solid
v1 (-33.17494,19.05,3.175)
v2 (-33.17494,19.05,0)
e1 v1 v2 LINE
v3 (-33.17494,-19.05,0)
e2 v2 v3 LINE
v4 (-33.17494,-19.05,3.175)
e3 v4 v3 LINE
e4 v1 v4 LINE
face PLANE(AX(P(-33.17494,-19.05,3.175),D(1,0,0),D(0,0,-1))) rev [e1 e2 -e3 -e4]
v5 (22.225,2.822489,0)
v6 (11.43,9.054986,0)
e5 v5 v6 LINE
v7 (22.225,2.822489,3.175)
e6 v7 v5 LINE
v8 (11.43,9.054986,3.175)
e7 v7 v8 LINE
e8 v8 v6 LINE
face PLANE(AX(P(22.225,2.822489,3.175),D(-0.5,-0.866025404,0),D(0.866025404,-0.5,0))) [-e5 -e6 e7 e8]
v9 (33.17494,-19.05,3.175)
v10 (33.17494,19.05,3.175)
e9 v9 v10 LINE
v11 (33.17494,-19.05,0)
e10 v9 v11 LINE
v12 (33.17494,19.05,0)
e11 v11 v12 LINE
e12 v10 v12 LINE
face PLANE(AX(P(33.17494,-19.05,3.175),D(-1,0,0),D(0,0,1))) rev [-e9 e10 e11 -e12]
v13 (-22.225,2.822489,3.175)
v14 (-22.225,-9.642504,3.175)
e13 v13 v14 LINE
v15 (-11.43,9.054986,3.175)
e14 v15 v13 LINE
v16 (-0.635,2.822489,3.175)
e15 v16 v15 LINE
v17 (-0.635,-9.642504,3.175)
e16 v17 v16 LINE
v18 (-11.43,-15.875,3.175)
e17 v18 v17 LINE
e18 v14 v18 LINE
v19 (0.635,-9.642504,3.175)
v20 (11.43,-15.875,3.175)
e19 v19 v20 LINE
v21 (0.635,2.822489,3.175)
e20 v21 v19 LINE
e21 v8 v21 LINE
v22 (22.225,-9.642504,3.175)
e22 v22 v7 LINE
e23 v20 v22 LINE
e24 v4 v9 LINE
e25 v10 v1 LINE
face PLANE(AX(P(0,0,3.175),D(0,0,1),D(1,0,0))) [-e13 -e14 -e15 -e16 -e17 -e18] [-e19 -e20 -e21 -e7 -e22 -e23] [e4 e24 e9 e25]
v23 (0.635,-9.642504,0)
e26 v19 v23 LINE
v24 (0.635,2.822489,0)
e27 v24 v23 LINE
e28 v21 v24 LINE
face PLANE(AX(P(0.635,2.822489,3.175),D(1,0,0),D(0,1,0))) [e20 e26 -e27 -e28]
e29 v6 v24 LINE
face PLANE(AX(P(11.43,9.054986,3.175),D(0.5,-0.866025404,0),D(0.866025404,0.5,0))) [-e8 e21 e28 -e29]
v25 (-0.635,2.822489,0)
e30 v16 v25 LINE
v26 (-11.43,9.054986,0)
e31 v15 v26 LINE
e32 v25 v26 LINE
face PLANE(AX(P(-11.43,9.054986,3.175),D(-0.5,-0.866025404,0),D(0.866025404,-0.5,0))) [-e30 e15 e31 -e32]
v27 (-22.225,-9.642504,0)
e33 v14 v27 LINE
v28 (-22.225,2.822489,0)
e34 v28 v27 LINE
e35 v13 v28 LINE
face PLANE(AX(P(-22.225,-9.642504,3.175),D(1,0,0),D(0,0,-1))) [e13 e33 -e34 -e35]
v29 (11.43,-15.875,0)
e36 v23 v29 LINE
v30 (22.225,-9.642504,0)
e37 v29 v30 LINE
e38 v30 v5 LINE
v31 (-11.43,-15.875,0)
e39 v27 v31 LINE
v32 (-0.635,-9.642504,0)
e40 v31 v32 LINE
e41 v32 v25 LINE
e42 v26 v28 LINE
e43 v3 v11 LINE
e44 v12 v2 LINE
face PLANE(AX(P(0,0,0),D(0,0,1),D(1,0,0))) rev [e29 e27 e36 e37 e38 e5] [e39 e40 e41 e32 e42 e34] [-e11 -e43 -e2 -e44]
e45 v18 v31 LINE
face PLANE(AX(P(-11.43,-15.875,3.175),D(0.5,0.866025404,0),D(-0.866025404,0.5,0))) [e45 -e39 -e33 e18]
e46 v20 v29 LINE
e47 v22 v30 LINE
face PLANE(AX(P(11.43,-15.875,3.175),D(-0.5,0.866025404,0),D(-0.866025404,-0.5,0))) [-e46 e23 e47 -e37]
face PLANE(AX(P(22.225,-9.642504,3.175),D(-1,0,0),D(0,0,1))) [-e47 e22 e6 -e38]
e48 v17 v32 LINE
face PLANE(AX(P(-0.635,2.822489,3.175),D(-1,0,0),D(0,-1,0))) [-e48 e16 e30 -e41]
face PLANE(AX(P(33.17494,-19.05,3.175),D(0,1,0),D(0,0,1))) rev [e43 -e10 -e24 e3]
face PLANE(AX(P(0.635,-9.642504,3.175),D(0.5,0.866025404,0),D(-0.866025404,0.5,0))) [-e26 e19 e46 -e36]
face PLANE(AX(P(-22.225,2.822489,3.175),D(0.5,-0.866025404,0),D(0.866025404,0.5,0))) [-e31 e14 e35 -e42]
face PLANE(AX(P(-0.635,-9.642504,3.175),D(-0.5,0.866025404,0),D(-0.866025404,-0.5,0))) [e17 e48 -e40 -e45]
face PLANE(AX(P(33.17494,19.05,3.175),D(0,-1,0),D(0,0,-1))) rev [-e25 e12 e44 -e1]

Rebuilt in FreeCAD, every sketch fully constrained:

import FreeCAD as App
import Part
import Sketcher

V = App.Vector
Q = App.Units.Quantity

doc = App.newDocument("Part")
body = doc.addObject("PartDesign::Body", "Body")

# Sketch on XY plane
sketch1 = body.newObject("Sketcher::SketchObject", "Sketch")
sketch1.AttachmentSupport = (doc.getObject("XY_Plane"), [""])
sketch1.MapMode = "FlatFace"
sketch1.addGeometry([
    Part.LineSegment(V(-33, 19, 0), V(-33, -19, 0)),  # 0
    Part.LineSegment(V(-33, -19, 0), V(33, -19, 0)),  # 1
    Part.LineSegment(V(33, -19, 0), V(33, 19, 0)),  # 2
    Part.LineSegment(V(33, 19, 0), V(-33, 19, 0)),  # 3
    Part.LineSegment(V(-1, 3, 0), V(-1, -10, 0)),  # 4
    Part.LineSegment(V(-1, -10, 0), V(-11, -16, 0)),  # 5
    Part.LineSegment(V(-11, -16, 0), V(-22, -10, 0)),  # 6
    Part.LineSegment(V(-22, -10, 0), V(-22, 3, 0)),  # 7
    Part.LineSegment(V(-22, 3, 0), V(-11, 9, 0)),  # 8
    Part.LineSegment(V(-11, 9, 0), V(-1, 3, 0)),  # 9
    Part.LineSegment(V(22, -10, 0), V(11, -16, 0)),  # 10
    Part.LineSegment(V(11, -16, 0), V(1, -10, 0)),  # 11
    Part.LineSegment(V(1, -10, 0), V(1, 3, 0)),  # 12
    Part.LineSegment(V(1, 3, 0), V(11, 9, 0)),  # 13
    Part.LineSegment(V(11, 9, 0), V(22, 3, 0)),  # 14
    Part.LineSegment(V(22, 3, 0), V(22, -10, 0)),  # 15
], False)
sketch1.addConstraint([
    Sketcher.Constraint("Coincident", 0, 2, 1, 1),
    Sketcher.Constraint("Coincident", 1, 2, 2, 1),
    Sketcher.Constraint("Coincident", 2, 2, 3, 1),
    Sketcher.Constraint("Coincident", 3, 2, 0, 1),
    Sketcher.Constraint("Coincident", 4, 2, 5, 1),
    Sketcher.Constraint("Coincident", 5, 2, 6, 1),
    Sketcher.Constraint("Coincident", 6, 2, 7, 1),
    Sketcher.Constraint("Coincident", 7, 2, 8, 1),
    Sketcher.Constraint("Coincident", 8, 2, 9, 1),
    Sketcher.Constraint("Coincident", 9, 2, 4, 1),
    Sketcher.Constraint("Coincident", 10, 2, 11, 1),
    Sketcher.Constraint("Coincident", 11, 2, 12, 1),
    Sketcher.Constraint("Coincident", 12, 2, 13, 1),
    Sketcher.Constraint("Coincident", 13, 2, 14, 1),
    Sketcher.Constraint("Coincident", 14, 2, 15, 1),
    Sketcher.Constraint("Coincident", 15, 2, 10, 1),
    Sketcher.Constraint("Vertical", 0),
    Sketcher.Constraint("Horizontal", 1),
    Sketcher.Constraint("Vertical", 2),
    Sketcher.Constraint("Horizontal", 3),
    Sketcher.Constraint("Vertical", 4),
    Sketcher.Constraint("Vertical", 7),
    Sketcher.Constraint("Vertical", 12),
    Sketcher.Constraint("Vertical", 15),
    Sketcher.Constraint("Symmetric", 0, 2, 2, 2, -1, 1),
    Sketcher.Constraint("Symmetric", 5, 2, 10, 2, -2),
    Sketcher.Constraint("Symmetric", 4, 2, 11, 2, -2),
    Sketcher.Constraint("Symmetric", 8, 2, 13, 2, -2),
    Sketcher.Constraint("Symmetric", 7, 2, 14, 2, -2),
    Sketcher.Constraint("Parallel", 5, 8),
    Sketcher.Constraint("Parallel", 6, 9),
    Sketcher.Constraint("Parallel", 8, 10),
    Sketcher.Constraint("Parallel", 9, 11),
    Sketcher.Constraint("Parallel", 10, 13),
    Sketcher.Constraint("Horizontal", 4, 2, 6, 2),
    Sketcher.Constraint("Horizontal", 7, 2, 9, 2),
    Sketcher.Constraint("DistanceY", 0, 2, 0, 1, Q("1.5 in")),
    Sketcher.Constraint("Angle", 5, Q("-150 deg")),
    Sketcher.Constraint("DistanceX", 5, 2, 10, 2, Q("0.9 in")),
    Sketcher.Constraint("DistanceX", 6, 2, 4, 2, Q("0.85 in")),
    Sketcher.Constraint("DistanceX", 1, 1, 1, 2, Q("2.6122 in")),
    Sketcher.Constraint("DistanceY", 5, 2, -1, 1, Q("0.625 in")),
    Sketcher.Constraint("DistanceY", 4, 2, 4, 1, 12.464993),
])
pad1 = body.newObject("PartDesign::Pad", "Pad")
pad1.Profile = sketch1
pad1.Length = Q("0.125 in")

doc.recompute()
